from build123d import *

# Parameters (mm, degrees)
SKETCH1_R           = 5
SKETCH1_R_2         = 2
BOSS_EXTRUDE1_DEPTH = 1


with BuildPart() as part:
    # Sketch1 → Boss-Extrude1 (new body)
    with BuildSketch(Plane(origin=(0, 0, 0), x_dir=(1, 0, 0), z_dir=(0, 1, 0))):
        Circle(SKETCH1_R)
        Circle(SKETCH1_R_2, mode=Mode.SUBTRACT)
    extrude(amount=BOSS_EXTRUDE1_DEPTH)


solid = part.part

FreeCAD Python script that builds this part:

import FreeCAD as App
import Part
import Sketcher

doc = App.newDocument("Part")
body = doc.addObject("PartDesign::Body", "Body")

sketch1 = body.newObject("Sketcher::SketchObject", "Sketch")
sketch1.AttachmentSupport = (doc.getObject("XZ_Plane"), [""])
sketch1.MapMode = "FlatFace"
sketch1.addGeometry(Part.Circle(App.Vector(0, 0, 0), App.Vector(0, 0, 1), 5), False)
sketch1.addGeometry(Part.Circle(App.Vector(0, 0, 0), App.Vector(0, 0, 1), 2), False)
sketch1.addConstraint(Sketcher.Constraint("Coincident", 0, 3, -1, 1))
sketch1.addConstraint(Sketcher.Constraint("Coincident", 1, 3, -1, 1))
sketch1.addConstraint(Sketcher.Constraint("Diameter", 0, 10.0))
sketch1.addConstraint(Sketcher.Constraint("Diameter", 1, 4.0))
pad1 = body.newObject("PartDesign::Pad", "Pad")
pad1.Profile = sketch1
pad1.Length = 1
pad1.Reversed = True

doc.recompute()
